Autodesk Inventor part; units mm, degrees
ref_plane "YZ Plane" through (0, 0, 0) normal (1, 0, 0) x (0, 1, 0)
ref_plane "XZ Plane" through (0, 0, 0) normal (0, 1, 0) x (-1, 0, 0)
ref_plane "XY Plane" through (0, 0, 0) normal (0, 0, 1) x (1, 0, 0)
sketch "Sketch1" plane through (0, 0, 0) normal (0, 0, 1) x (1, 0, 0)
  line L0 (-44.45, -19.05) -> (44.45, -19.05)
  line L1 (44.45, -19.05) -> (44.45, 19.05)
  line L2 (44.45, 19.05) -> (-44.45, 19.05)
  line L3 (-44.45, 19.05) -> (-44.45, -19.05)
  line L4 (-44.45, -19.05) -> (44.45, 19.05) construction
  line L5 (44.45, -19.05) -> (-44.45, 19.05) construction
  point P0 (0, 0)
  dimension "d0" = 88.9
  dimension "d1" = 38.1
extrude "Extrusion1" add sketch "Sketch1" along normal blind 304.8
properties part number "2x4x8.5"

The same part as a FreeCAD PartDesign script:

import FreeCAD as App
import Part
import Sketcher
from FreeCAD import Vector
Q = App.Units.Quantity

doc = App.newDocument("Part")
body = doc.addObject("PartDesign::Body", "Body")

# Sketch on XY plane
sketch1 = body.newObject("Sketcher::SketchObject", "Sketch")
sketch1.AttachmentSupport = (doc.getObject("XY_Plane"), [""])
sketch1.MapMode = "FlatFace"
sketch1.addGeometry(Part.LineSegment(Vector(-44, 19, 0), Vector(-44, -19, 0)), False)
sketch1.addGeometry(Part.LineSegment(Vector(-44, -19, 0), Vector(44, -19, 0)), False)
sketch1.addGeometry(Part.LineSegment(Vector(44, -19, 0), Vector(44, 19, 0)), False)
sketch1.addGeometry(Part.LineSegment(Vector(44, 19, 0), Vector(-44, 19, 0)), False)
sketch1.addConstraint(Sketcher.Constraint("Coincident", 0, 2, 1, 1))
sketch1.addConstraint(Sketcher.Constraint("Coincident", 1, 2, 2, 1))
sketch1.addConstraint(Sketcher.Constraint("Coincident", 2, 2, 3, 1))
sketch1.addConstraint(Sketcher.Constraint("Coincident", 3, 2, 0, 1))
sketch1.addConstraint(Sketcher.Constraint("Vertical", 0))
sketch1.addConstraint(Sketcher.Constraint("Horizontal", 1))
sketch1.addConstraint(Sketcher.Constraint("Vertical", 2))
sketch1.addConstraint(Sketcher.Constraint("Horizontal", 3))
sketch1.addConstraint(Sketcher.Constraint("Symmetric", 0, 2, 2, 2, -1, 1))
sketch1.addConstraint(Sketcher.Constraint("DistanceX", 1, 1, 1, 2, Q("3.5 in")))
sketch1.addConstraint(Sketcher.Constraint("DistanceY", 0, 2, 0, 1, Q("1.5 in")))
pad1 = body.newObject("PartDesign::Pad", "Pad")
pad1.Profile = sketch1
pad1.Length = Q("12 in")

doc.recompute()
